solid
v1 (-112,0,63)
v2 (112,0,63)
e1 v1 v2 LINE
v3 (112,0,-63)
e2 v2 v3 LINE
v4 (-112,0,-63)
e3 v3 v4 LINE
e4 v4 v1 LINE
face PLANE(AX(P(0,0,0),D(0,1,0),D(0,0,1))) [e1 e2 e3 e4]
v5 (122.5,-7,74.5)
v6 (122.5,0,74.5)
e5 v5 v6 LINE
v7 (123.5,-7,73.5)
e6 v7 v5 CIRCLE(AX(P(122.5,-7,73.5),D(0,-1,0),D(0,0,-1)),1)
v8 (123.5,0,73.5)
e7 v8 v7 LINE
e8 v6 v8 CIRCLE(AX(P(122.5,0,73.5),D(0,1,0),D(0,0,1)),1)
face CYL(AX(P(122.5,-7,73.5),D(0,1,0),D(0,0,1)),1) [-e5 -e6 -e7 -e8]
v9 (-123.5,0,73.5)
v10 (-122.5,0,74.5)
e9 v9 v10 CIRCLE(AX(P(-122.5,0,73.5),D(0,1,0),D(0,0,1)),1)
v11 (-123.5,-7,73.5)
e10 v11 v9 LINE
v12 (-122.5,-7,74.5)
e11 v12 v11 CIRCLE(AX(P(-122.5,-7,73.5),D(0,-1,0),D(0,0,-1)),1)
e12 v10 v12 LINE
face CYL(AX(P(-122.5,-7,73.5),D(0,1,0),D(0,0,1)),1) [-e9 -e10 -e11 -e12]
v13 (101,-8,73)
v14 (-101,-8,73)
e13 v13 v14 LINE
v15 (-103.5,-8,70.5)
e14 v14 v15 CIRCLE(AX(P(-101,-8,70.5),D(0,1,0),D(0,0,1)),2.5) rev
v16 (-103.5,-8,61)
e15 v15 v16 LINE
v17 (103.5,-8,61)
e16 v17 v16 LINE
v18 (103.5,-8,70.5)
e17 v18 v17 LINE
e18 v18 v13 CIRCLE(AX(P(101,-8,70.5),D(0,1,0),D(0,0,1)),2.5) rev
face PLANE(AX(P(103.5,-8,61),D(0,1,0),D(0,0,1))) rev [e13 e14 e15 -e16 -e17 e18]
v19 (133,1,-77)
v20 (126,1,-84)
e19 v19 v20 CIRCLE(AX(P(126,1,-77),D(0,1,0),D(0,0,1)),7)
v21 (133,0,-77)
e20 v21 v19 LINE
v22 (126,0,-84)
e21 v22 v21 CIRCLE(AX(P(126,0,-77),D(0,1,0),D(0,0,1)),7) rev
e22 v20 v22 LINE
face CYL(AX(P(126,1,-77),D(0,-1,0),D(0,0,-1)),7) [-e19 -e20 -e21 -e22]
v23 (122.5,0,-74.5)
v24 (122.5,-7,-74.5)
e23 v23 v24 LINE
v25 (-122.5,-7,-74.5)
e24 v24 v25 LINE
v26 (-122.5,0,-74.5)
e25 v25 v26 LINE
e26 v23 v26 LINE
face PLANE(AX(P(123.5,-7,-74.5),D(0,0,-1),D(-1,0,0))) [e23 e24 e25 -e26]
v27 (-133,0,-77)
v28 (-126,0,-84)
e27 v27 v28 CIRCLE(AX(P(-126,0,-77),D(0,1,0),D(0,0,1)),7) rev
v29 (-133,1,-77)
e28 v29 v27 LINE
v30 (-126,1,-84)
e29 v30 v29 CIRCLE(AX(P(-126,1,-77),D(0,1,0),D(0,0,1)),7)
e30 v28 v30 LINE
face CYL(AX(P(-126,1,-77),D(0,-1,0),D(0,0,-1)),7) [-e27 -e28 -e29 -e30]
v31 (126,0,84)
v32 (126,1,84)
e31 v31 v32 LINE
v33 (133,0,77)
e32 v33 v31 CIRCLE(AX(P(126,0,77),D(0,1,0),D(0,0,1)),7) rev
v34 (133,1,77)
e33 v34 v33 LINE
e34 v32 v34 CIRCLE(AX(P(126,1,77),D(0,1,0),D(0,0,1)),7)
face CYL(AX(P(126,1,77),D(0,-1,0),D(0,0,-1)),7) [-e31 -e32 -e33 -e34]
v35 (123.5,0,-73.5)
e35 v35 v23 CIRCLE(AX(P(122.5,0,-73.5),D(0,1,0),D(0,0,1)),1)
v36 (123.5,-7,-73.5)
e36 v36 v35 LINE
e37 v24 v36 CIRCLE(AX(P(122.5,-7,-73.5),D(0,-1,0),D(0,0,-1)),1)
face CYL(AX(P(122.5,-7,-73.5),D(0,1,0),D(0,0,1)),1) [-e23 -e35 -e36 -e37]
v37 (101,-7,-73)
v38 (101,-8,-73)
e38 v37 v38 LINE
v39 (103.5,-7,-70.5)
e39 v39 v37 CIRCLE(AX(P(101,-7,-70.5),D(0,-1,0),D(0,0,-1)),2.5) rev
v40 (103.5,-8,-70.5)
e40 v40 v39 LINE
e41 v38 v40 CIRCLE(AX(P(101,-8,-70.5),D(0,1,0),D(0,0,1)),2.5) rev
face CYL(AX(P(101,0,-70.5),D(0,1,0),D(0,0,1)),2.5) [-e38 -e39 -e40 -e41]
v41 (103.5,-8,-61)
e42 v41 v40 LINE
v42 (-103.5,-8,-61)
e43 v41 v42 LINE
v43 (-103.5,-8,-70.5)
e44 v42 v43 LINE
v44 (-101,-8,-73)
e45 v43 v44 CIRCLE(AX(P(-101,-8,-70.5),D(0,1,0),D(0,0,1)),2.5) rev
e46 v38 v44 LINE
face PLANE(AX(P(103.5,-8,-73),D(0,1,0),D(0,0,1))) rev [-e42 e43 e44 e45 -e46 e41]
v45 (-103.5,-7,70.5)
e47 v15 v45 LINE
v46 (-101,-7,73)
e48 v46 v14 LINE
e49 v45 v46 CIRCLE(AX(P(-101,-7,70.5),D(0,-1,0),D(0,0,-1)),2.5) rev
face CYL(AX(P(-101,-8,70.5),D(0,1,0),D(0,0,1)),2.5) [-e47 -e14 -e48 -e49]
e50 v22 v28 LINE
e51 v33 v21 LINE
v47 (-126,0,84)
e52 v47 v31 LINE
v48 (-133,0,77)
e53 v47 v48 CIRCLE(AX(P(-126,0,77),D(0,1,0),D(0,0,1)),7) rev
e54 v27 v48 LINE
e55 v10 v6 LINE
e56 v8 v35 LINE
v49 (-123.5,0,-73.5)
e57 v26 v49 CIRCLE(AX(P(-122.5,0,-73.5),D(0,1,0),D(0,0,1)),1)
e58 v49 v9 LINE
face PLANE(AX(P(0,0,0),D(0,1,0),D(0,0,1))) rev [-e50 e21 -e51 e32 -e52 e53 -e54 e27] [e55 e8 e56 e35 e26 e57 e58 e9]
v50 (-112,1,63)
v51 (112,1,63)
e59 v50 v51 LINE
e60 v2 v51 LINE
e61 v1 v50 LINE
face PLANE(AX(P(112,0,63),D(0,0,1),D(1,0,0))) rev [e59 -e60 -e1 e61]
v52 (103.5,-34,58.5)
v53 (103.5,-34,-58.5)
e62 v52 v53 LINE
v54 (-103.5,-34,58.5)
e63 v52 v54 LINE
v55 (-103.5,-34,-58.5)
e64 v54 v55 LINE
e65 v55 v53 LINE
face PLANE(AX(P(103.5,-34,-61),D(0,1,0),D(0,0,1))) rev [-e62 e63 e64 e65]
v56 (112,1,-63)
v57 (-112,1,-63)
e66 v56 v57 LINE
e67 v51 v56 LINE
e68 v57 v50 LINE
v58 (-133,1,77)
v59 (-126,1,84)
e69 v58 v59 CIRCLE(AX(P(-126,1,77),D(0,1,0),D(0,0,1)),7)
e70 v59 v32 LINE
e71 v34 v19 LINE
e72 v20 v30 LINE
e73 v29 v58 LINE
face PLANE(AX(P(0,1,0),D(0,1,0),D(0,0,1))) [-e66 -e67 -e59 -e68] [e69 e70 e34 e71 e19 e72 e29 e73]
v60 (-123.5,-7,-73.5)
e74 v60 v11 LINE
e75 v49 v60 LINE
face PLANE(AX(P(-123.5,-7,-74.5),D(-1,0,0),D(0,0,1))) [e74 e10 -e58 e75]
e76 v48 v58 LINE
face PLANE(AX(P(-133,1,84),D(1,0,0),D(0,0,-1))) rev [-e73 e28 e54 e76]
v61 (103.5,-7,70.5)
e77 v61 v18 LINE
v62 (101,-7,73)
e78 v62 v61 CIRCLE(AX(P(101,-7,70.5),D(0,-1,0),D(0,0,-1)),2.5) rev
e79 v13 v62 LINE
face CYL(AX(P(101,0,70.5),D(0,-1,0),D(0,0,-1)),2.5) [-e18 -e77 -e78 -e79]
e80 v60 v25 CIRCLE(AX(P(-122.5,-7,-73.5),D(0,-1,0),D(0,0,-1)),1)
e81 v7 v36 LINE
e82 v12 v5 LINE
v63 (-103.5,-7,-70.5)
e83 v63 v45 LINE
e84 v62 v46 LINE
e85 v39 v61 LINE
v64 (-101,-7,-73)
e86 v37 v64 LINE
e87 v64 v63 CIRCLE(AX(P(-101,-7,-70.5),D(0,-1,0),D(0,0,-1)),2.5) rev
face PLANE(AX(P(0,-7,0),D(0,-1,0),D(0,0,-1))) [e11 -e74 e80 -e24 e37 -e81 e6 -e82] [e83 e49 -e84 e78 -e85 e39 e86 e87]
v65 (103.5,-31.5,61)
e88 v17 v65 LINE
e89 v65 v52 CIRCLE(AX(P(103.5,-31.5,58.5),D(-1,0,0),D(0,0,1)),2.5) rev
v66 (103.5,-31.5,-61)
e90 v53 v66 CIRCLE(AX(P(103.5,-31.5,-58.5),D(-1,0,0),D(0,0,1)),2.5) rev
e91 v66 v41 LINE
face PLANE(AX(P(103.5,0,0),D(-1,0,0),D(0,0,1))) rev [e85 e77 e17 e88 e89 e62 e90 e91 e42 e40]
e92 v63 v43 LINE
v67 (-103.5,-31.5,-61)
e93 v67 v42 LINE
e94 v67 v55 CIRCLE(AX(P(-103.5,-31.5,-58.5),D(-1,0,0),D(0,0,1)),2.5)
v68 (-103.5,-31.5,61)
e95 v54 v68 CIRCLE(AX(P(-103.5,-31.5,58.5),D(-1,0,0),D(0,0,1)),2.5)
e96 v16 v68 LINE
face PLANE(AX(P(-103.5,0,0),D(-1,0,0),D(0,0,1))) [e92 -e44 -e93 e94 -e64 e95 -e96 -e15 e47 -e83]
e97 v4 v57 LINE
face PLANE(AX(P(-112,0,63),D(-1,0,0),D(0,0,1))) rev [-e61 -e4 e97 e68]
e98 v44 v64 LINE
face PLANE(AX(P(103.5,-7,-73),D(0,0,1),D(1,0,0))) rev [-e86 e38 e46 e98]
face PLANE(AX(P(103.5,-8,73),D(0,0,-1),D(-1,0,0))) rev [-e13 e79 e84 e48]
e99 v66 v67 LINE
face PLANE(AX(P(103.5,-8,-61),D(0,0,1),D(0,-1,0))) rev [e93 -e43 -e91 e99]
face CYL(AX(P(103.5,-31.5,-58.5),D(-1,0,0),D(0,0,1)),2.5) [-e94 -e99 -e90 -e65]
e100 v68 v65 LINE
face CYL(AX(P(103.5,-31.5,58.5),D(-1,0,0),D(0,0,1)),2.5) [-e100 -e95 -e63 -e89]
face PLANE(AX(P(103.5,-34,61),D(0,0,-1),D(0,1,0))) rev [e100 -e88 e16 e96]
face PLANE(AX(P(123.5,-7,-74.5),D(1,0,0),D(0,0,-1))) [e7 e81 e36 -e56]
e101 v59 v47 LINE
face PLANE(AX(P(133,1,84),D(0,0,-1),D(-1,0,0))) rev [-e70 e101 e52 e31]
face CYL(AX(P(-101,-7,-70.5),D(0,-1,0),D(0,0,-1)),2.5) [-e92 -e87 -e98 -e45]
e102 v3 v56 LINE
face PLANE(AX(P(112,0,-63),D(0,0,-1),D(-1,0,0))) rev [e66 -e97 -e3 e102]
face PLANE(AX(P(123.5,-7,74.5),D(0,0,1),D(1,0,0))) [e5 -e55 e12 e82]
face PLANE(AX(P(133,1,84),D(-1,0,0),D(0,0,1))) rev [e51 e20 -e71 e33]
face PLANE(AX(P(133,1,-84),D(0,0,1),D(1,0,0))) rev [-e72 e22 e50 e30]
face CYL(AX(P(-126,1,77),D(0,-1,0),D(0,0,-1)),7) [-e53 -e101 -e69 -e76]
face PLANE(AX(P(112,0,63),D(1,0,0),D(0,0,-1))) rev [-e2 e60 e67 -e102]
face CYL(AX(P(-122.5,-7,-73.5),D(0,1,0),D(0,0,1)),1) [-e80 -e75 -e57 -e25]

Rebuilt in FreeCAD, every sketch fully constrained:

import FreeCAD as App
import Part
import Sketcher

V = App.Vector
Q = App.Units.Quantity


def edges_at(feature, points):
    """Names of the edges that pass closest to the given points."""
    edges = feature.Shape.Edges
    near = lambda p: min(range(len(edges)), key=lambda i: edges[i].distToShape(Part.Vertex(*p))[0])
    return sorted({f"Edge{near(p) + 1}" for p in points})

doc = App.newDocument("Part")
body = doc.addObject("PartDesign::Body", "Body")

sketch1 = body.newObject("Sketcher::SketchObject", "Sketch")
sketch1.AttachmentSupport = (doc.getObject("XZ_Plane"), [""])
sketch1.MapMode = "FlatFace"
sketch1.addGeometry(Part.LineSegment(V(-133, -84, 0), V(-133, 84, 0)), False)
sketch1.addGeometry(Part.LineSegment(V(-133, 84, 0), V(133, 84, 0)), False)
sketch1.addGeometry(Part.LineSegment(V(133, 84, 0), V(133, -84, 0)), False)
sketch1.addGeometry(Part.LineSegment(V(133, -84, 0), V(-133, -84, 0)), False)
sketch1.addConstraint(Sketcher.Constraint("Coincident", 0, 2, 1, 1))
sketch1.addConstraint(Sketcher.Constraint("Coincident", 1, 2, 2, 1))
sketch1.addConstraint(Sketcher.Constraint("Coincident", 2, 2, 3, 1))
sketch1.addConstraint(Sketcher.Constraint("Coincident", 3, 2, 0, 1))
sketch1.addConstraint(Sketcher.Constraint("Vertical", 0))
sketch1.addConstraint(Sketcher.Constraint("Horizontal", 1))
sketch1.addConstraint(Sketcher.Constraint("Vertical", 2))
sketch1.addConstraint(Sketcher.Constraint("Horizontal", 3))
sketch1.addConstraint(Sketcher.Constraint("Symmetric", 0, 2, 2, 2, -1, 1))
sketch1.addConstraint(Sketcher.Constraint("DistanceX", 1, 1, 1, 2, Q("266 mm")))
sketch1.addConstraint(Sketcher.Constraint("DistanceY", 0, 1, 0, 2, Q("168 mm")))
pad1 = body.newObject("PartDesign::Pad", "Pad")
pad1.Profile = sketch1
pad1.Length = 1
pad1.Reversed = True

sketch2 = body.newObject("Sketcher::SketchObject", "Sketch001")
sketch2.AttachmentSupport = (doc.getObject("XZ_Plane"), [""])
sketch2.MapMode = "FlatFace"
sketch2.addGeometry(Part.LineSegment(V(-124, -74, 0), V(-124, 74, 0)), False)
sketch2.addGeometry(Part.LineSegment(V(-124, 74, 0), V(124, 74, 0)), False)
sketch2.addGeometry(Part.LineSegment(V(124, 74, 0), V(124, -74, 0)), False)
sketch2.addGeometry(Part.LineSegment(V(124, -74, 0), V(-124, -74, 0)), False)
sketch2.addConstraint(Sketcher.Constraint("Coincident", 0, 2, 1, 1))
sketch2.addConstraint(Sketcher.Constraint("Coincident", 1, 2, 2, 1))
sketch2.addConstraint(Sketcher.Constraint("Coincident", 2, 2, 3, 1))
sketch2.addConstraint(Sketcher.Constraint("Coincident", 3, 2, 0, 1))
sketch2.addConstraint(Sketcher.Constraint("Vertical", 0))
sketch2.addConstraint(Sketcher.Constraint("Horizontal", 1))
sketch2.addConstraint(Sketcher.Constraint("Vertical", 2))
sketch2.addConstraint(Sketcher.Constraint("Horizontal", 3))
sketch2.addConstraint(Sketcher.Constraint("Symmetric", 0, 2, 2, 2, -1, 1))
sketch2.addConstraint(Sketcher.Constraint("DistanceX", 1, 1, 1, 2, Q("247 mm")))
sketch2.addConstraint(Sketcher.Constraint("DistanceY", 0, 1, 0, 2, Q("149 mm")))
pad2 = body.newObject("PartDesign::Pad", "Pad001")
pad2.Profile = sketch2
pad2.Length = 7

sketch3 = body.newObject("Sketcher::SketchObject", "Sketch002")
sketch3.AttachmentSupport = (doc.getObject("YZ_Plane"), [""])
sketch3.MapMode = "FlatFace"
sketch3.addGeometry(Part.LineSegment(V(-7, -73, 0), V(-7, 73, 0)), False)
sketch3.addGeometry(Part.LineSegment(V(-7, 73, 0), V(-8, 73, 0)), False)
sketch3.addGeometry(Part.LineSegment(V(-8, 73, 0), V(-8, 61, 0)), False)
sketch3.addGeometry(Part.LineSegment(V(-8, 61, 0), V(-34, 61, 0)), False)
sketch3.addGeometry(Part.LineSegment(V(-34, 61, 0), V(-34, -61, 0)), False)
sketch3.addGeometry(Part.LineSegment(V(-34, -61, 0), V(-8, -61, 0)), False)
sketch3.addGeometry(Part.LineSegment(V(-8, -61, 0), V(-8, -73, 0)), False)
sketch3.addGeometry(Part.LineSegment(V(-8, -73, 0), V(-7, -73, 0)), False)
sketch3.addConstraint(Sketcher.Constraint("Coincident", 0, 2, 1, 1))
sketch3.addConstraint(Sketcher.Constraint("Coincident", 1, 2, 2, 1))
sketch3.addConstraint(Sketcher.Constraint("Coincident", 2, 2, 3, 1))
sketch3.addConstraint(Sketcher.Constraint("Coincident", 3, 2, 4, 1))
sketch3.addConstraint(Sketcher.Constraint("Coincident", 4, 2, 5, 1))
sketch3.addConstraint(Sketcher.Constraint("Coincident", 5, 2, 6, 1))
sketch3.addConstraint(Sketcher.Constraint("Coincident", 6, 2, 7, 1))
sketch3.addConstraint(Sketcher.Constraint("Coincident", 7, 2, 0, 1))
sketch3.addConstraint(Sketcher.Constraint("Vertical", 0))
sketch3.addConstraint(Sketcher.Constraint("Horizontal", 1))
sketch3.addConstraint(Sketcher.Constraint("Vertical", 2))
sketch3.addConstraint(Sketcher.Constraint("Horizontal", 3))
sketch3.addConstraint(Sketcher.Constraint("Vertical", 4))
sketch3.addConstraint(Sketcher.Constraint("Horizontal", 5))
sketch3.addConstraint(Sketcher.Constraint("Vertical", 6))
sketch3.addConstraint(Sketcher.Constraint("Horizontal", 7))
sketch3.addConstraint(Sketcher.Constraint("Symmetric", 2, 2, 5, 2, -1))
sketch3.addConstraint(Sketcher.Constraint("Equal", 2, 6))
sketch3.addConstraint(Sketcher.Constraint("DistanceX", 1, 2, 1, 1, Q("1 mm")))
sketch3.addConstraint(Sketcher.Constraint("DistanceX", 3, 2, 3, 1, Q("26 mm")))
sketch3.addConstraint(Sketcher.Constraint("DistanceY", 0, 1, 0, 2, Q("146 mm")))
sketch3.addConstraint(Sketcher.Constraint("DistanceY", 2, 2, 2, 1, Q("12 mm")))
sketch3.addConstraint(Sketcher.Constraint("DistanceX", 0, 2, -1, 1, Q("7 mm")))
pad3 = body.newObject("PartDesign::Pad", "Pad002")
pad3.Profile = sketch3
pad3.Length = 207
pad3.Midplane = True
doc.recompute()

fillet = body.newObject("PartDesign::Fillet", "Fillet")
fillet.Base = (pad3, edges_at(pad3, [
    (-133, 0.5, -84),
    (133, 0.5, -84),
    (133, 0.5, 84),
    (-133, 0.5, 84),
]))
fillet.Radius = 7
doc.recompute()

fillet2 = body.newObject("PartDesign::Fillet", "Fillet001")
fillet2.Base = (fillet, edges_at(fillet, [
    (-123.5, -3.5, 74.5),
    (-123.5, -3.5, -74.5),
    (123.5, -3.5, -74.5),
    (123.5, -3.5, 74.5),
]))
fillet2.Radius = 1
doc.recompute()

fillet3 = body.newObject("PartDesign::Fillet", "Fillet002")
fillet3.Base = (fillet2, edges_at(fillet2, [
    (-103.5, -7.5, 73),
    (0, -34, 61),
    (0, -34, -61),
    (-103.5, -7.5, -73),
    (103.5, -7.5, 73),
    (103.5, -7.5, -73),
]))
fillet3.Radius = 2.5

sketch4 = body.newObject("Sketcher::SketchObject", "Sketch003")
sketch4.AttachmentSupport = (doc.getObject("XZ_Plane"), [""])
sketch4.MapMode = "FlatFace"
sketch4.AttachmentOffset = App.Placement(V(0, 0, -1), App.Rotation())
sketch4.addGeometry(Part.LineSegment(V(-112, -63, 0), V(-112, 63, 0)), False)
sketch4.addGeometry(Part.LineSegment(V(-112, 63, 0), V(112, 63, 0)), False)
sketch4.addGeometry(Part.LineSegment(V(112, 63, 0), V(112, -63, 0)), False)
sketch4.addGeometry(Part.LineSegment(V(112, -63, 0), V(-112, -63, 0)), False)
sketch4.addConstraint(Sketcher.Constraint("Coincident", 0, 2, 1, 1))
sketch4.addConstraint(Sketcher.Constraint("Coincident", 1, 2, 2, 1))
sketch4.addConstraint(Sketcher.Constraint("Coincident", 2, 2, 3, 1))
sketch4.addConstraint(Sketcher.Constraint("Coincident", 3, 2, 0, 1))
sketch4.addConstraint(Sketcher.Constraint("Vertical", 0))
sketch4.addConstraint(Sketcher.Constraint("Horizontal", 1))
sketch4.addConstraint(Sketcher.Constraint("Vertical", 2))
sketch4.addConstraint(Sketcher.Constraint("Horizontal", 3))
sketch4.addConstraint(Sketcher.Constraint("Symmetric", 0, 2, 2, 2, -1, 1))
sketch4.addConstraint(Sketcher.Constraint("DistanceX", 1, 1, 1, 2, Q("224 mm")))
sketch4.addConstraint(Sketcher.Constraint("DistanceY", 0, 1, 0, 2, Q("126 mm")))
pocket1 = body.newObject("PartDesign::Pocket", "Pocket")
pocket1.Profile = sketch4
pocket1.Length = 1
pocket1.Reversed = True

doc.recompute()
